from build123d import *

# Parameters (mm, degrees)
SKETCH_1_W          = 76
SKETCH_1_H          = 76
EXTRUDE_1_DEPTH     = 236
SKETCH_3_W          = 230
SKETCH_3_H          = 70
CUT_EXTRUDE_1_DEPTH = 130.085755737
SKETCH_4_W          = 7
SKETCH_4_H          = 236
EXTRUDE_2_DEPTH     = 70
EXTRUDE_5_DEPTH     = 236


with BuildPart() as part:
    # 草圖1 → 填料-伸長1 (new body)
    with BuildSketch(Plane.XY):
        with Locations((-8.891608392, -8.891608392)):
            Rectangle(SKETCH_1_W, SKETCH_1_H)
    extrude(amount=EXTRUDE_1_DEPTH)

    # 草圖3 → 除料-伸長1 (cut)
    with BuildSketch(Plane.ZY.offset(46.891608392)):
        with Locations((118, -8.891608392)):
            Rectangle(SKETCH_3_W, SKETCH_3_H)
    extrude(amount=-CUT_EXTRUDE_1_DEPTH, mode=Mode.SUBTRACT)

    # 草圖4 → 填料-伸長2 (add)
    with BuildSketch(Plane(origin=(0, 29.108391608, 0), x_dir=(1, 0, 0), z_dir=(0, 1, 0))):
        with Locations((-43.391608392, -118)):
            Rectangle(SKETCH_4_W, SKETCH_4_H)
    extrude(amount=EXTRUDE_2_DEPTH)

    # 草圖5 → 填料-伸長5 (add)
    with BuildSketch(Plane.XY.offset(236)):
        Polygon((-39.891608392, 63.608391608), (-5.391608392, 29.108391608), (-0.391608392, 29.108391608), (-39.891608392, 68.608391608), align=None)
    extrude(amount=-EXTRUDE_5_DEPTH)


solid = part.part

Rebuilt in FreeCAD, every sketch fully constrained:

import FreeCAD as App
import Part
import Sketcher
Q = App.Units.Quantity


def add_polygon(sketch, points):
    """Adds a closed chain of lines whose ends are joined by coincident constraints."""
    first, n = sketch.GeometryCount, len(points)
    for a, b in zip(points, points[1:] + points[:1]):
        sketch.addGeometry(Part.LineSegment(App.Vector(*a, 0), App.Vector(*b, 0)), False)
    for i in range(n):
        sketch.addConstraint(Sketcher.Constraint("Coincident", first + i, 2, first + (i + 1) % n, 1))

doc = App.newDocument("Part")
body = doc.addObject("PartDesign::Body", "Body")

# Sketch on XY plane
sketch1 = body.newObject("Sketcher::SketchObject", "Sketch")
sketch1.AttachmentSupport = (doc.getObject("XY_Plane"), [""])
sketch1.MapMode = "FlatFace"
add_polygon(sketch1, [(-47, 29), (-47, -47), (29, -47), (29, 29)])  # lines 0-3
sketch1.addConstraint(Sketcher.Constraint("Vertical", 0))
sketch1.addConstraint(Sketcher.Constraint("Horizontal", 1))
sketch1.addConstraint(Sketcher.Constraint("Vertical", 2))
sketch1.addConstraint(Sketcher.Constraint("Horizontal", 3))
sketch1.addConstraint(Sketcher.Constraint("Equal", 3, 0))
sketch1.addConstraint(Sketcher.Constraint("DistanceX", 1, 1, 1, 2, Q("76 mm")))
sketch1.addConstraint(Sketcher.Constraint("DistanceX", 0, 2, -1, 1, Q("46.891608 mm")))
sketch1.addConstraint(Sketcher.Constraint("DistanceY", 0, 2, -1, 1, Q("46.891608 mm")))
pad1 = body.newObject("PartDesign::Pad", "Pad")
pad1.Profile = sketch1
pad1.Length = 236

# Sketch on YZ plane
sketch2 = body.newObject("Sketcher::SketchObject", "Sketch001")
sketch2.AttachmentSupport = (doc.getObject("YZ_Plane"), [""])
sketch2.MapMode = "FlatFace"
sketch2.AttachmentOffset = App.Placement(App.Vector(0, 0, -46.891608), App.Rotation())
add_polygon(sketch2, [(26, 3), (-44, 3), (-44, 233), (26, 233)])  # lines 0-3
sketch2.addConstraint(Sketcher.Constraint("Horizontal", 0))
sketch2.addConstraint(Sketcher.Constraint("Vertical", 1))
sketch2.addConstraint(Sketcher.Constraint("Horizontal", 2))
sketch2.addConstraint(Sketcher.Constraint("Vertical", 3))
sketch2.addConstraint(Sketcher.Constraint("DistanceX", 0, 2, 0, 1, Q("70 mm")))
sketch2.addConstraint(Sketcher.Constraint("DistanceY", 1, 1, 1, 2, Q("230 mm")))
sketch2.addConstraint(Sketcher.Constraint("DistanceY", -1, 1, 0, 2, Q("3 mm")))
sketch2.addConstraint(Sketcher.Constraint("DistanceX", 0, 2, -1, 1, Q("43.891608 mm")))
pocket1 = body.newObject("PartDesign::Pocket", "Pocket")
pocket1.Profile = sketch2
pocket1.Length = 130.085756
pocket1.Reversed = True

# Sketch on XZ plane
sketch3 = body.newObject("Sketcher::SketchObject", "Sketch002")
sketch3.AttachmentSupport = (doc.getObject("XZ_Plane"), [""])
sketch3.MapMode = "FlatFace"
sketch3.AttachmentOffset = App.Placement(App.Vector(0, 0, -29.108392), App.Rotation())
add_polygon(sketch3, [(-47, 0), (-47, 236), (-40, 236), (-40, 0)])  # lines 0-3
sketch3.addConstraint(Sketcher.Constraint("Vertical", 0))
sketch3.addConstraint(Sketcher.Constraint("Horizontal", 1))
sketch3.addConstraint(Sketcher.Constraint("Vertical", 2))
sketch3.addConstraint(Sketcher.Constraint("Horizontal", 3))
sketch3.addConstraint(Sketcher.Constraint("PointOnObject", 2, 2, -1))
sketch3.addConstraint(Sketcher.Constraint("DistanceX", 1, 1, 1, 2, Q("7 mm")))
sketch3.addConstraint(Sketcher.Constraint("DistanceY", 0, 1, 0, 2, Q("236 mm")))
sketch3.addConstraint(Sketcher.Constraint("DistanceX", 0, 2, -1, 1, Q("46.891608 mm")))
pad2 = body.newObject("PartDesign::Pad", "Pad001")
pad2.Profile = sketch3
pad2.Length = 70
pad2.Reversed = True

# Sketch on XY plane
sketch4 = body.newObject("Sketcher::SketchObject", "Sketch003")
sketch4.AttachmentSupport = (doc.getObject("XY_Plane"), [""])
sketch4.MapMode = "FlatFace"
sketch4.AttachmentOffset = App.Placement(App.Vector(0, 0, 236), App.Rotation())
add_polygon(sketch4, [(-40, 64), (-5, 29), (0, 29), (-40, 69)])  # lines 0-3
sketch4.addConstraint(Sketcher.Constraint("Horizontal", 1))
sketch4.addConstraint(Sketcher.Constraint("Vertical", 3))
sketch4.addConstraint(Sketcher.Constraint("Parallel", 0, 2))
sketch4.addConstraint(Sketcher.Constraint("Equal", 1, 3))
sketch4.addConstraint(Sketcher.Constraint("DistanceX", 1, 1, 1, 2, Q("5 mm")))
sketch4.addConstraint(Sketcher.Constraint("DistanceX", 2, 2, 0, 2, Q("34.5 mm")))
sketch4.addConstraint(Sketcher.Constraint("DistanceX", 0, 2, -1, 1, Q("5.391608 mm")))
sketch4.addConstraint(Sketcher.Constraint("DistanceY", -1, 1, 0, 2, Q("29.108392 mm")))
pad3 = body.newObject("PartDesign::Pad", "Pad002")
pad3.Profile = sketch4
pad3.Length = 236
pad3.Reversed = True

doc.recompute()
